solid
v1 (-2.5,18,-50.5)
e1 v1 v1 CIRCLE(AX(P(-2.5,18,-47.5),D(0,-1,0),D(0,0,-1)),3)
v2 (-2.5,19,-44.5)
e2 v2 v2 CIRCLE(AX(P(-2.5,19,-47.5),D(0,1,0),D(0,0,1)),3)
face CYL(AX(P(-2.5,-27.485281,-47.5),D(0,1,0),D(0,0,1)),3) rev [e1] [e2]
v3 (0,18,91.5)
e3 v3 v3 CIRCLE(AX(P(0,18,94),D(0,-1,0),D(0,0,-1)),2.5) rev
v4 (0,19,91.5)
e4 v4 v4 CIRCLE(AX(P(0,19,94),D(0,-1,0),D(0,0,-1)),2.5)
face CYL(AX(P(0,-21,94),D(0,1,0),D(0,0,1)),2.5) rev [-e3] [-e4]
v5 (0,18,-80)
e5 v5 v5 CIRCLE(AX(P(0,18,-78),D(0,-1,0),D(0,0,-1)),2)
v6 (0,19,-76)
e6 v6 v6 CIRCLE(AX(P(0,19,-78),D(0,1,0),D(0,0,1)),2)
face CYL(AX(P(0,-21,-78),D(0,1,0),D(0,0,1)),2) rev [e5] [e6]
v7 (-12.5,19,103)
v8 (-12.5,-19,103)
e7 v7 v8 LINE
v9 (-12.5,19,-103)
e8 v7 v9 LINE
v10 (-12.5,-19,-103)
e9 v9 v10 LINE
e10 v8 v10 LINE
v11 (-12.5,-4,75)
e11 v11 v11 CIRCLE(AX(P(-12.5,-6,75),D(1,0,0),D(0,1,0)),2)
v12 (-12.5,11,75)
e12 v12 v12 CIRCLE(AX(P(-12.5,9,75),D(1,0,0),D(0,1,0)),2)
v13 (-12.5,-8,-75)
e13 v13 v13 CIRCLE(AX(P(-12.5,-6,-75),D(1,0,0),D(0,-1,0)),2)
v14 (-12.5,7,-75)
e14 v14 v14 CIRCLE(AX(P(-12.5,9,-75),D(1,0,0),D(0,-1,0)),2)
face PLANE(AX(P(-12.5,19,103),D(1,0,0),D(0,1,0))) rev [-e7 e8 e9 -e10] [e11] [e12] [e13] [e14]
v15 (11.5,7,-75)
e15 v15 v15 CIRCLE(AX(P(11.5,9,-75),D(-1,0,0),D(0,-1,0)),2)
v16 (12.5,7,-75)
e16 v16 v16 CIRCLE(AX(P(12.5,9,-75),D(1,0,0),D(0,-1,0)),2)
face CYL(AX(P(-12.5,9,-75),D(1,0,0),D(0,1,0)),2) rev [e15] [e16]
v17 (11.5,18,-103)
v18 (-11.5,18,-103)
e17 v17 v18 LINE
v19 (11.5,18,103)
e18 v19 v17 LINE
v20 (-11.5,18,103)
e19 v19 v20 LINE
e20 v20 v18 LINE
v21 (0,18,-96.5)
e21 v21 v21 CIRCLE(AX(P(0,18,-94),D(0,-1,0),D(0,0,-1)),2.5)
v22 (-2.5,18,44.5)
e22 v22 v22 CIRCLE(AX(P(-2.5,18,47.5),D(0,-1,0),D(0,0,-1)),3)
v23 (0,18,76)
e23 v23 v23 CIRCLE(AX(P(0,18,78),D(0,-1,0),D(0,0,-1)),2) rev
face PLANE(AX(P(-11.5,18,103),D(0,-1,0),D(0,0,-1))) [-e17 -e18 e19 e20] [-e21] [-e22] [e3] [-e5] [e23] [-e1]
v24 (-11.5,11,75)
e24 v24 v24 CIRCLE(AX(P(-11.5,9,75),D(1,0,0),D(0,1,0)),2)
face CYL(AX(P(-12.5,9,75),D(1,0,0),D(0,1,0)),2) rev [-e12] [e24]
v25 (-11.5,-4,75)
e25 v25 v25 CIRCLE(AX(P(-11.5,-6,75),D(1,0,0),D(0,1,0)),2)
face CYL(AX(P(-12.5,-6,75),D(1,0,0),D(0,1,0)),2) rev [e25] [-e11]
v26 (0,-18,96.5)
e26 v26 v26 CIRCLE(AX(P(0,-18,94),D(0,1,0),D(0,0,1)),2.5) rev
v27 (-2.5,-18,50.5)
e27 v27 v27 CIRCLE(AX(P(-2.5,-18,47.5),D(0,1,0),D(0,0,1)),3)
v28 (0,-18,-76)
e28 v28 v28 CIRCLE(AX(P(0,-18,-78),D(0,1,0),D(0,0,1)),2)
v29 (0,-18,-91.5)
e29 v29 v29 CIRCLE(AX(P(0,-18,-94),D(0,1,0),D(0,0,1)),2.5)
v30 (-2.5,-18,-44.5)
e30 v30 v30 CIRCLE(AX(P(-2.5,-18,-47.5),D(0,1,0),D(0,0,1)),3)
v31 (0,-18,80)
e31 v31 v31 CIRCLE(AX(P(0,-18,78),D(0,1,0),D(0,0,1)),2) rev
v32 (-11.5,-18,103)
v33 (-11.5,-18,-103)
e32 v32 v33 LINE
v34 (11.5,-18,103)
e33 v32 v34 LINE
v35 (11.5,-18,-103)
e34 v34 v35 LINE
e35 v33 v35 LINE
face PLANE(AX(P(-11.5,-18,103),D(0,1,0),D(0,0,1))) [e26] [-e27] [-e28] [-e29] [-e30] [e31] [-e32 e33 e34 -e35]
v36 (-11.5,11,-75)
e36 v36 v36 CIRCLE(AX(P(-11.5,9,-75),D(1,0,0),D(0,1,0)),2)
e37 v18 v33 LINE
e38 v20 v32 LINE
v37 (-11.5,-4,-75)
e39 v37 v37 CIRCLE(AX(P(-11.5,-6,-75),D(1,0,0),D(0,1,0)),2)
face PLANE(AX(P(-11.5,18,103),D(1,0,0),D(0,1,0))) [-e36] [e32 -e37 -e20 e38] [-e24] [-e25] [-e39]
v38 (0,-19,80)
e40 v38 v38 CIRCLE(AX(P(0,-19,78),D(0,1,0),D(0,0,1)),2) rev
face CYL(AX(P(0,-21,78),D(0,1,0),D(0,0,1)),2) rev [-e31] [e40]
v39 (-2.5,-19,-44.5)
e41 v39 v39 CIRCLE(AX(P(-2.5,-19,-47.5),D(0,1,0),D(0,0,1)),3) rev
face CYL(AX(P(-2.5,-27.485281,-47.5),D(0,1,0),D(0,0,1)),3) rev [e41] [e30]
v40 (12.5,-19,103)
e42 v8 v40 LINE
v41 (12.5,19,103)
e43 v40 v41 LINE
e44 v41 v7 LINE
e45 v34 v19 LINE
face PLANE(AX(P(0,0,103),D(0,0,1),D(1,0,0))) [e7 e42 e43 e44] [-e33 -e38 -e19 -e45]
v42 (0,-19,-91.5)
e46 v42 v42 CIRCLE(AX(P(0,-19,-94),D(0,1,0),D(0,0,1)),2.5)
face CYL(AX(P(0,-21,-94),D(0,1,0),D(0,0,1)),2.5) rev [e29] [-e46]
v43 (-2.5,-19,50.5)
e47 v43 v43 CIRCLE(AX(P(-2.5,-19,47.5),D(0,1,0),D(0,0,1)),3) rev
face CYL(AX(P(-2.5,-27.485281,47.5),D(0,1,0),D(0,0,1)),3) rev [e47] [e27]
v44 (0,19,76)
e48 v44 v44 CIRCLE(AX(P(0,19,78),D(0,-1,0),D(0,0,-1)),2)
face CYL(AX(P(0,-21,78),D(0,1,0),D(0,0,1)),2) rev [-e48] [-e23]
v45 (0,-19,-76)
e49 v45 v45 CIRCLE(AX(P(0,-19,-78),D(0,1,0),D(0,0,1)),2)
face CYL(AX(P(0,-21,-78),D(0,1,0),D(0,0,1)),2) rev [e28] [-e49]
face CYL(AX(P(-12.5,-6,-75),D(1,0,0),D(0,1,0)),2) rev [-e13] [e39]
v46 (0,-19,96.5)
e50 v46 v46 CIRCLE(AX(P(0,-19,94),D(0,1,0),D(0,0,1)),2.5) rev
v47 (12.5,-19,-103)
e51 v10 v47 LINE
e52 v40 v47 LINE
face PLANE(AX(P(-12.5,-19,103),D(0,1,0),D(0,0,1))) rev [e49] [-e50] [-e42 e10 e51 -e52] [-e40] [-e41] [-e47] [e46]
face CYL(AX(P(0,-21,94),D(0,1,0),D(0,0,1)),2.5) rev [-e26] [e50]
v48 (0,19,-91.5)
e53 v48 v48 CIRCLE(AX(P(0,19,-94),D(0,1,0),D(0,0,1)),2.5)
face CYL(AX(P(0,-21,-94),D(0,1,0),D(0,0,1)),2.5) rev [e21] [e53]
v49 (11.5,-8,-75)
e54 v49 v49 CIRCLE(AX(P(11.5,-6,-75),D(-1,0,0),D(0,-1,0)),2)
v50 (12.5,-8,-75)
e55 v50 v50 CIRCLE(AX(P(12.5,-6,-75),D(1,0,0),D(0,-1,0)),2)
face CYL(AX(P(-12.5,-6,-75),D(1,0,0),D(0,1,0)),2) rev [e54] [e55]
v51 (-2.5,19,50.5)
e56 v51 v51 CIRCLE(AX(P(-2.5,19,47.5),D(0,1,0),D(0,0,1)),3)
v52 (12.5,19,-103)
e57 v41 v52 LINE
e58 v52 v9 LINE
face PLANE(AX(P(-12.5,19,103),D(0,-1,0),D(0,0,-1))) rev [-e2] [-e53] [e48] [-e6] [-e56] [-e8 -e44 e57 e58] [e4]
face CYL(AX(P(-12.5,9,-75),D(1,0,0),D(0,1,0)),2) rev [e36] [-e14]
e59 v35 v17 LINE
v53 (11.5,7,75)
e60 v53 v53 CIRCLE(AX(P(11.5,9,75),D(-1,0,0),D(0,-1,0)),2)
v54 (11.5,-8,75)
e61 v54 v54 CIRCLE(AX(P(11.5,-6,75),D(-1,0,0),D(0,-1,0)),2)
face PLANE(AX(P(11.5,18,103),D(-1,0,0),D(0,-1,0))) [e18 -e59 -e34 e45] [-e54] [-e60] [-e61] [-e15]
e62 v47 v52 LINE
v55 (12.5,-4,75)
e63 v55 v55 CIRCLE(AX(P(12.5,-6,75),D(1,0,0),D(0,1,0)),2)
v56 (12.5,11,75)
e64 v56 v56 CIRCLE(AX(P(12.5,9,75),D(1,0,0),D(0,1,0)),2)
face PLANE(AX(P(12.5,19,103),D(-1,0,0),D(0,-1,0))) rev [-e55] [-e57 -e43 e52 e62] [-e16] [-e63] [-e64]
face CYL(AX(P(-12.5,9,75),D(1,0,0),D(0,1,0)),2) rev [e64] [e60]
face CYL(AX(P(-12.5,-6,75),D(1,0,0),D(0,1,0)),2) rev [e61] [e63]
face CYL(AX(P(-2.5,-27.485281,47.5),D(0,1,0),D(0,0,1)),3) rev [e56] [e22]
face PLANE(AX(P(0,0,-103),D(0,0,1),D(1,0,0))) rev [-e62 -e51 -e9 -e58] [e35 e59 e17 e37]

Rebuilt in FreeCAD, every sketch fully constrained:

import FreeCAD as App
import Part
import Sketcher

V = App.Vector
Q = App.Units.Quantity


def add_polygon(sketch, points):
    """Adds a closed chain of lines whose ends are joined by coincident constraints."""
    first, n = sketch.GeometryCount, len(points)
    for a, b in zip(points, points[1:] + points[:1]):
        sketch.addGeometry(Part.LineSegment(App.Vector(*a, 0), App.Vector(*b, 0)), False)
    for i in range(n):
        sketch.addConstraint(Sketcher.Constraint("Coincident", first + i, 2, first + (i + 1) % n, 1))

doc = App.newDocument("Part")
body = doc.addObject("PartDesign::Body", "Body")

# Sketch on XY plane
sketch1 = body.newObject("Sketcher::SketchObject", "Sketch")
sketch1.AttachmentSupport = (doc.getObject("XY_Plane"), [""])
sketch1.MapMode = "FlatFace"
add_polygon(sketch1, [(-12, 19), (-12, -19), (12, -19), (12, 19)])  # lines 0-3
add_polygon(sketch1, [(12, -18), (-12, -18), (-12, 18), (12, 18)])  # lines 4-7
sketch1.addConstraint([
    Sketcher.Constraint("Vertical", 0),
    Sketcher.Constraint("Horizontal", 1),
    Sketcher.Constraint("Vertical", 2),
    Sketcher.Constraint("Horizontal", 3),
    Sketcher.Constraint("Horizontal", 4),
    Sketcher.Constraint("Vertical", 5),
    Sketcher.Constraint("Horizontal", 6),
    Sketcher.Constraint("Vertical", 7),
    Sketcher.Constraint("Symmetric", 0, 2, 2, 2, -1, 1),
    Sketcher.Constraint("Symmetric", 4, 2, 6, 2, -1, 1),
    Sketcher.Constraint("DistanceX", 1, 1, 1, 2, Q("25 mm")),
    Sketcher.Constraint("DistanceX", 4, 2, 4, 1, Q("23 mm")),
    Sketcher.Constraint("DistanceY", 0, 2, 0, 1, Q("38 mm")),
    Sketcher.Constraint("DistanceY", 5, 1, 5, 2, Q("36 mm")),
])
pad1 = body.newObject("PartDesign::Pad", "Pad")
pad1.Profile = sketch1
pad1.Length = 206
pad1.Midplane = True

# Sketch on XZ plane
sketch2 = body.newObject("Sketcher::SketchObject", "Sketch001")
sketch2.AttachmentSupport = (doc.getObject("XZ_Plane"), [""])
sketch2.MapMode = "FlatFace"
sketch2.AttachmentOffset = App.Placement(V(0, 0, -19), App.Rotation())
sketch2.addGeometry([
    Part.Circle(V(0, -94, 0), V(0, 0, 1), 2.5),
    Part.Circle(V(0, -78, 0), V(0, 0, 1), 2),
], False)
sketch2.addConstraint([
    Sketcher.Constraint("PointOnObject", 0, 3, -2),
    Sketcher.Constraint("PointOnObject", 1, 3, -2),
    Sketcher.Constraint("Diameter", 0, Q("5 mm")),
    Sketcher.Constraint("Diameter", 1, Q("4 mm")),
    Sketcher.Constraint("DistanceY", 0, 3, -1, 1, Q("94 mm")),
    Sketcher.Constraint("DistanceY", 1, 3, -1, 1, Q("78 mm")),
])
pocket1 = body.newObject("PartDesign::Pocket", "Pocket")
pocket1.Profile = sketch2
pocket1.Length = 40
pocket1.Reversed = True
doc.recompute()

mirrored = body.newObject("PartDesign::Mirrored", "Mirrored")
mirrored.Originals = [pocket1]
mirrored.MirrorPlane = (doc.getObject("XY_Plane"), [""])
body.Tip = mirrored

# Sketch on XZ plane
sketch3 = body.newObject("Sketcher::SketchObject", "Sketch002")
sketch3.AttachmentSupport = (doc.getObject("XZ_Plane"), [""])
sketch3.MapMode = "FlatFace"
sketch3.AttachmentOffset = App.Placement(V(0, 0, -19), App.Rotation())
sketch3.addGeometry([
    Part.Circle(V(-2.5, -47.5, 0), V(0, 0, 1), 3),
    Part.Circle(V(-2.5, 47.5, 0), V(0, 0, 1), 3),
], False)
sketch3.addConstraint([
    Sketcher.Constraint("Equal", 0, 1),
    Sketcher.Constraint("Symmetric", 0, 3, 1, 3, -1),
    Sketcher.Constraint("Diameter", 0, Q("6 mm")),
    Sketcher.Constraint("DistanceY", 0, 3, 1, 3, Q("95 mm")),
    Sketcher.Constraint("DistanceX", 0, 3, -1, 1, Q("2.5 mm")),
])
pocket2 = body.newObject("PartDesign::Pocket", "Pocket001")
pocket2.Profile = sketch3
pocket2.Length = 38
pocket2.Reversed = True

# Sketch on YZ plane
sketch4 = body.newObject("Sketcher::SketchObject", "Sketch003")
sketch4.AttachmentSupport = (doc.getObject("YZ_Plane"), [""])
sketch4.MapMode = "FlatFace"
sketch4.AttachmentOffset = App.Placement(V(0, 0, 12.5), App.Rotation())
sketch4.addGeometry([
    Part.Circle(V(9, 75, 0), V(0, 0, 1), 2),
    Part.Circle(V(-6, 75, 0), V(0, 0, 1), 2),
    Part.Circle(V(-6, -75, 0), V(0, 0, 1), 2),
    Part.Circle(V(9, -75, 0), V(0, 0, 1), 2),
], False)
sketch4.addConstraint([
    Sketcher.Constraint("Equal", 0, 1),
    Sketcher.Constraint("Equal", 1, 2),
    Sketcher.Constraint("Equal", 2, 3),
    Sketcher.Constraint("Symmetric", 1, 3, 2, 3, -1),
    Sketcher.Constraint("Symmetric", 0, 3, 3, 3, -1),
    Sketcher.Constraint("Horizontal", 0, 3, 1, 3),
    Sketcher.Constraint("Diameter", 0, Q("4 mm")),
    Sketcher.Constraint("DistanceX", -1, 1, 0, 3, Q("9 mm")),
    Sketcher.Constraint("DistanceY", -1, 1, 0, 3, Q("75 mm")),
    Sketcher.Constraint("DistanceX", 1, 3, -1, 1, Q("6 mm")),
])
pocket3 = body.newObject("PartDesign::Pocket", "Pocket002")
pocket3.Profile = sketch4
pocket3.Type = "ThroughAll"

doc.recompute()
